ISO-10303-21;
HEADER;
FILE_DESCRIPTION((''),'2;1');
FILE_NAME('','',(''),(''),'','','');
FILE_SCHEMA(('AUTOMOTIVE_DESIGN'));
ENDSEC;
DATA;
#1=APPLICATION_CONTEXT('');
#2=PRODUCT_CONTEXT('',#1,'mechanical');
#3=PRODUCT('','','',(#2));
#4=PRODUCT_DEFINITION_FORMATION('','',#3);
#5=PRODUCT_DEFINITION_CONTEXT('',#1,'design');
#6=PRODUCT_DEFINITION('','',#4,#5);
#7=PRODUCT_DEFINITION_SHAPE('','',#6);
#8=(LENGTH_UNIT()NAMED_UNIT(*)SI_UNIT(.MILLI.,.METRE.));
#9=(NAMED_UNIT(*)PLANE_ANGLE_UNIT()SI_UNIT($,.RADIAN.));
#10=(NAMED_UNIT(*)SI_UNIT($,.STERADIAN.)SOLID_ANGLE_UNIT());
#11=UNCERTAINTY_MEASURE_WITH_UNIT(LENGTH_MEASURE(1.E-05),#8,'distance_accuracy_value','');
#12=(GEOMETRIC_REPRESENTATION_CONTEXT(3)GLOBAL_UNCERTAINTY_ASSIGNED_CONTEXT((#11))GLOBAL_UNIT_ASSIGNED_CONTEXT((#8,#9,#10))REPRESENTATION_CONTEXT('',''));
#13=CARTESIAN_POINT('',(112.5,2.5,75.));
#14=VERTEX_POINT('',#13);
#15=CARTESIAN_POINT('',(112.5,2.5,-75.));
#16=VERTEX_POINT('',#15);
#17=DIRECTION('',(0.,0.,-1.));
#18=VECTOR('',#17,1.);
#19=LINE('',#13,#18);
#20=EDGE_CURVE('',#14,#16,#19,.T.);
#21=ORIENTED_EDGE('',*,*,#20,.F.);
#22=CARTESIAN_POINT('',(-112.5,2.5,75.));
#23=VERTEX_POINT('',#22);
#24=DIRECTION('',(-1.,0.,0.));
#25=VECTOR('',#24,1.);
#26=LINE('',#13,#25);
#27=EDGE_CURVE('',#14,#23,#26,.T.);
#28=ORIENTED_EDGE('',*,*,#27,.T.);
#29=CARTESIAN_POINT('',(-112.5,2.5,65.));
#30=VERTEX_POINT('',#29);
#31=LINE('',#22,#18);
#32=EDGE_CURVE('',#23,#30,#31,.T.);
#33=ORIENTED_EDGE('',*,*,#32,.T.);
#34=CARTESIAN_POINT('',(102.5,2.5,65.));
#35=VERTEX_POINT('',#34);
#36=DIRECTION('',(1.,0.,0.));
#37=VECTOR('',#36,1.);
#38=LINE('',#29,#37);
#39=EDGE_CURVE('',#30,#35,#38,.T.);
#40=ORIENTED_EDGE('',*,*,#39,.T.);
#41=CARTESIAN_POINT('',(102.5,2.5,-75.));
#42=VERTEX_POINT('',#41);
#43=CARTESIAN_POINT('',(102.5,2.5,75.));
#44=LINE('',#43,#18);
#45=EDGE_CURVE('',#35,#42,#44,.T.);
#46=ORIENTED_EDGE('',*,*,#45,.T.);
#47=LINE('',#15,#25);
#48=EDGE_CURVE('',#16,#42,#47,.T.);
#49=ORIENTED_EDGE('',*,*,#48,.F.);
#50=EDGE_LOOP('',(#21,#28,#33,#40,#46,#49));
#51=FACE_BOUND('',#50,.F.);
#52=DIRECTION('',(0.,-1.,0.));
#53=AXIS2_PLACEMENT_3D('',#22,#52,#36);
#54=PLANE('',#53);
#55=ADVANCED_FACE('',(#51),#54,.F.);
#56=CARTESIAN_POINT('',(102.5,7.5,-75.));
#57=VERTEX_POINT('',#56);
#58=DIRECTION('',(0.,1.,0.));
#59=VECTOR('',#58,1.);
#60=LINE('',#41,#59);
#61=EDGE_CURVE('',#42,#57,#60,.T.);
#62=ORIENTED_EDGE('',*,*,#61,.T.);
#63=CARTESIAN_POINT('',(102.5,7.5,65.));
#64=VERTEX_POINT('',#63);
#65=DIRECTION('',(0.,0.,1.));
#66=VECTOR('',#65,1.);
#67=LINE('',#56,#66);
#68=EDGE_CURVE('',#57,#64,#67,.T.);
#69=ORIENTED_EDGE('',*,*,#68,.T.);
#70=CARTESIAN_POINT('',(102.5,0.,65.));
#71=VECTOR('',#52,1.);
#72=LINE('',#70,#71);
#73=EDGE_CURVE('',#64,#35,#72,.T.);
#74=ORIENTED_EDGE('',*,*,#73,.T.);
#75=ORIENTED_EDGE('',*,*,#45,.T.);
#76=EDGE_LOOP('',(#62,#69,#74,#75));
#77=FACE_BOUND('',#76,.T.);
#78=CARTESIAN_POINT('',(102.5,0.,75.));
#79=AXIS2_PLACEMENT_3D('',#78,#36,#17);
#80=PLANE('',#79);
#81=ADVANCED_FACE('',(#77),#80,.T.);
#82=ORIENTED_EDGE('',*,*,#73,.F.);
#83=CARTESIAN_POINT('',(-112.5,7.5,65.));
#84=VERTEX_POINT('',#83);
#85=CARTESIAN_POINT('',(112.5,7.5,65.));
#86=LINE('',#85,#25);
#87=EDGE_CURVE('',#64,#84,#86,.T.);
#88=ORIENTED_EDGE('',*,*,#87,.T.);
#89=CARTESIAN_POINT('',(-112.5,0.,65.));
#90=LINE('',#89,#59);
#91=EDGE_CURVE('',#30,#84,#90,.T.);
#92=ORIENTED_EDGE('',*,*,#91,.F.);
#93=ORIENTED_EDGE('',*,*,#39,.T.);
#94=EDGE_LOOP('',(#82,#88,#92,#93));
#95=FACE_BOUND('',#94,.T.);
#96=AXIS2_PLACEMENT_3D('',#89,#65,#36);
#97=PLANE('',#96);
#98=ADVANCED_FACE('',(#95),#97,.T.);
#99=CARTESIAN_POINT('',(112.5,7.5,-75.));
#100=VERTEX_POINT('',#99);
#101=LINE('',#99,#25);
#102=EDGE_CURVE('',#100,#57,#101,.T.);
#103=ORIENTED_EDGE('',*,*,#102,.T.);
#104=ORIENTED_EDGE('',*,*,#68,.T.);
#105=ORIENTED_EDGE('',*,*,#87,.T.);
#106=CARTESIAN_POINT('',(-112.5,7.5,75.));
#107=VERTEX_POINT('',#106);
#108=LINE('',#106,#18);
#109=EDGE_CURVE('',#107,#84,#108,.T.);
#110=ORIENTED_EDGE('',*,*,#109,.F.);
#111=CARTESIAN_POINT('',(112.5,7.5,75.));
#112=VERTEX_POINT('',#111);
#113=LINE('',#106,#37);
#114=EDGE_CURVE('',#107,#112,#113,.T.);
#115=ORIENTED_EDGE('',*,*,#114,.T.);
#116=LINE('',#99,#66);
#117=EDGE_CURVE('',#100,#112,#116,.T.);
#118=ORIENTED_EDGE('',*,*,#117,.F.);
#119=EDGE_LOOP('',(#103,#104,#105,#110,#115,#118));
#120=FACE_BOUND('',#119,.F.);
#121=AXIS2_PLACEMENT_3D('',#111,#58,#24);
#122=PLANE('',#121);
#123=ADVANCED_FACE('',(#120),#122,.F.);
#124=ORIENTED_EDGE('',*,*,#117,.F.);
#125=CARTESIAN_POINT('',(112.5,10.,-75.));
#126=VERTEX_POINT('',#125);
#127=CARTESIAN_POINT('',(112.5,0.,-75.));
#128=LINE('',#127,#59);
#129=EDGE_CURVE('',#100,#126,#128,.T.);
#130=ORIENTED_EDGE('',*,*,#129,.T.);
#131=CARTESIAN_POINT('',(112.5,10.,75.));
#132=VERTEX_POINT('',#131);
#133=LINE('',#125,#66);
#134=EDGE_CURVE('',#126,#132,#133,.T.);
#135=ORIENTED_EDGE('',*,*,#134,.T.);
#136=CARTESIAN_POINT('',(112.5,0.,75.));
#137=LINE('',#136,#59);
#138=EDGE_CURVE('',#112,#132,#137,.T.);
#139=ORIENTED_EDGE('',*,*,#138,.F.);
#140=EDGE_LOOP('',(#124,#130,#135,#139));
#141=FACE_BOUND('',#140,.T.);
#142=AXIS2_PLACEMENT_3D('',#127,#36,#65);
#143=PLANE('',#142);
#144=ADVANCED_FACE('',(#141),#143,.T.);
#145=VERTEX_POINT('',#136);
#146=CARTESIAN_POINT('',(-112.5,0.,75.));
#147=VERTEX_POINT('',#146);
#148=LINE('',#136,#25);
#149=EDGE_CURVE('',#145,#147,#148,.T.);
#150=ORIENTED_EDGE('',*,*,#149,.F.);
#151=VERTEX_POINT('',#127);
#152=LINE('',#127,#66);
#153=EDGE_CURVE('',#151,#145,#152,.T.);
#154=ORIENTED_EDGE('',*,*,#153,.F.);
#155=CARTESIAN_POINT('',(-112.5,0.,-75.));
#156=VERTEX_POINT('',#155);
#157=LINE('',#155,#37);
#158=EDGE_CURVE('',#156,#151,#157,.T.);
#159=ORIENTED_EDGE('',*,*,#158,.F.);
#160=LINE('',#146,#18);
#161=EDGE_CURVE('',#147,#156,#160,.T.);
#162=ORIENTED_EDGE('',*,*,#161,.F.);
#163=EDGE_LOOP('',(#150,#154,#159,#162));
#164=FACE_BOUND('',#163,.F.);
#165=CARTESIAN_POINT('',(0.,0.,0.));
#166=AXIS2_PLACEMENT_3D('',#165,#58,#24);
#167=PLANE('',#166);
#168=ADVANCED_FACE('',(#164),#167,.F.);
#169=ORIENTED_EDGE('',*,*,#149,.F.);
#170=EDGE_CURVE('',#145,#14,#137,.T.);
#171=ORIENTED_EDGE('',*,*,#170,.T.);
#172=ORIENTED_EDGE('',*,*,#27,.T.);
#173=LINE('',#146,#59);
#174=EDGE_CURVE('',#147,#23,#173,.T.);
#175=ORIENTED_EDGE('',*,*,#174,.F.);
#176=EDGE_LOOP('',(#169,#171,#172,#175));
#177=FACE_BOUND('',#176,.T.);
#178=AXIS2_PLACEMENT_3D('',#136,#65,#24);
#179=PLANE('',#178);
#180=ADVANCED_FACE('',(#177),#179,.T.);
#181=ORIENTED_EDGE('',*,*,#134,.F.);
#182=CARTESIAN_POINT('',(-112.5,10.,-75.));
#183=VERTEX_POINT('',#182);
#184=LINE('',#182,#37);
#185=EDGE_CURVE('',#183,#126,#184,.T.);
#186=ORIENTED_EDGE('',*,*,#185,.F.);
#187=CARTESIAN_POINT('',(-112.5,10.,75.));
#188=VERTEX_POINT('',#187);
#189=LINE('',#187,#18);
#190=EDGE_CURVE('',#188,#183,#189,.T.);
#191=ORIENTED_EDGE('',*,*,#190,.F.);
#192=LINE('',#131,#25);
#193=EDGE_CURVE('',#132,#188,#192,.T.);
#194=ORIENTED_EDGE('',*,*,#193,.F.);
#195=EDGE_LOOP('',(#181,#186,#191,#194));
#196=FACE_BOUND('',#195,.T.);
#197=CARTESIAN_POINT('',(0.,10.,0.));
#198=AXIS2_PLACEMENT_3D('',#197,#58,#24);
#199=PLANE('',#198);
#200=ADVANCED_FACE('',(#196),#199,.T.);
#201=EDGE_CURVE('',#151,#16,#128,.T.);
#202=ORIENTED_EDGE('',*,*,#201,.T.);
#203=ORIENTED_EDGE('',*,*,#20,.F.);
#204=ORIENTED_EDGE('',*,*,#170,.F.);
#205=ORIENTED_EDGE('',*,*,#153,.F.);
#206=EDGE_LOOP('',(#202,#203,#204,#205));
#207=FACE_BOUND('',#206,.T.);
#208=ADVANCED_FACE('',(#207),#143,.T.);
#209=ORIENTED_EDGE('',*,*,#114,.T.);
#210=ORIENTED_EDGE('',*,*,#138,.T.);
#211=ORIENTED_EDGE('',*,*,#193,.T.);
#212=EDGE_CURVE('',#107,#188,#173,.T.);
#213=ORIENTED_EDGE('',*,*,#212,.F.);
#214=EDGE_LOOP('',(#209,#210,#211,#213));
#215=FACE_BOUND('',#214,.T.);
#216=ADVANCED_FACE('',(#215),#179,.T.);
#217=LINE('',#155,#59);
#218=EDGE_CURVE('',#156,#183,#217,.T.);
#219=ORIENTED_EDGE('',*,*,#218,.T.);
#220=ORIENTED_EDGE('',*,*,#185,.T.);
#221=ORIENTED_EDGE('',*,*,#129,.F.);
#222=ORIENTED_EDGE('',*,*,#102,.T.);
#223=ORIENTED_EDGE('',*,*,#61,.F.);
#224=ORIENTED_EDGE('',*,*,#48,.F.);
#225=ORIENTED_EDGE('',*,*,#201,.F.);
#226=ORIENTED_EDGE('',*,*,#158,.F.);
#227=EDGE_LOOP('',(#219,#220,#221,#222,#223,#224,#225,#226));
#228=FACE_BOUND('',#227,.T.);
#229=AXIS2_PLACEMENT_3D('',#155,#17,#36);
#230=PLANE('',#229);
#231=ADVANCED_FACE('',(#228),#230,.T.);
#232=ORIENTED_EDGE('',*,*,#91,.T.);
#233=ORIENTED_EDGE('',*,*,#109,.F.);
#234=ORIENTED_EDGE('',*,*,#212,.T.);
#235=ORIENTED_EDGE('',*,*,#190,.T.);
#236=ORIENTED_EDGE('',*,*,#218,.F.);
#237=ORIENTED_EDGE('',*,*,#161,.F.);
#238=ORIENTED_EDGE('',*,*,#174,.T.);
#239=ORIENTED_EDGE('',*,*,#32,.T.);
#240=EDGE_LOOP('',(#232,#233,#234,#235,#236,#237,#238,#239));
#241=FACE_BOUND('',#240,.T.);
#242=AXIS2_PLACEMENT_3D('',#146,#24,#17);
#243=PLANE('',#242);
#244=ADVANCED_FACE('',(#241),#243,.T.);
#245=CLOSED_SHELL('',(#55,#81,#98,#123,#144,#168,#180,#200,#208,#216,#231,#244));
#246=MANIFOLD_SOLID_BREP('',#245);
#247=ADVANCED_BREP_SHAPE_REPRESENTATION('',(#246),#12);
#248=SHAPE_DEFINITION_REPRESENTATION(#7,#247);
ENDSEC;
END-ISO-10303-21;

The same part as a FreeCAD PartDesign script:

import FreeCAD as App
import Part
import Sketcher
Q = App.Units.Quantity


def add_polygon(sketch, points):
    """Adds a closed chain of lines whose ends are joined by coincident constraints."""
    first, n = sketch.GeometryCount, len(points)
    for a, b in zip(points, points[1:] + points[:1]):
        sketch.addGeometry(Part.LineSegment(App.Vector(*a, 0), App.Vector(*b, 0)), False)
    for i in range(n):
        sketch.addConstraint(Sketcher.Constraint("Coincident", first + i, 2, first + (i + 1) % n, 1))

doc = App.newDocument("Part")
params = doc.addObject("Spreadsheet::Sheet", "Params")
for row, (alias, value) in enumerate([
    ("sketch1_width", "225 mm"),
    ("sketch1_height", "150 mm"),
    ("pad1_length", "10 mm"),
    ("sketch2_width", "5 mm"),
    ("sketch2_height", "150 mm"),
    ("pocket1_length", "10 mm"),
    ("sketch3_width", "225 mm"),
    ("sketch3_height", "5 mm"),
    ("pocket2_length", "10 mm"),
], start=1):
    params.set(f"A{row}", alias)
    params.set(f"B{row}", "=" + value)
    params.setAlias(f"B{row}", alias)

body = doc.addObject("PartDesign::Body", "Body")

sketch1 = doc.addObject("Sketcher::SketchObject", "Sketch")
body.addObject(sketch1)
sketch1.AttachmentSupport = (doc.XZ_Plane, [""])
sketch1.MapMode = "FlatFace"
add_polygon(sketch1, [(-112, 75), (112, 75), (112, -75), (-112, -75)])
sketch1.addConstraint(Sketcher.Constraint("Horizontal", 0))
sketch1.addConstraint(Sketcher.Constraint("Vertical", 1))
sketch1.addConstraint(Sketcher.Constraint("Horizontal", 2))
sketch1.addConstraint(Sketcher.Constraint("Vertical", 3))
sketch1.addConstraint(Sketcher.Constraint("Symmetric", 0, 2, 2, 2, -1, 1))
sketch1.addConstraint(Sketcher.Constraint("DistanceX", 0, 1, 0, 2, Q("225 mm")))
sketch1.addConstraint(Sketcher.Constraint("DistanceY", 1, 2, 1, 1, Q("150 mm")))
sketch1.setExpression("Constraints[9]", "Params.sketch1_width")
sketch1.setExpression("Constraints[10]", "Params.sketch1_height")
pad1 = doc.addObject("PartDesign::Pad", "Pad")
body.addObject(pad1)
pad1.Profile = sketch1
pad1.setExpression("Length", "Params.pad1_length")
pad1.Reversed = True

sketch2 = doc.addObject("Sketcher::SketchObject", "Sketch001")
body.addObject(sketch2)
sketch2.AttachmentSupport = (doc.YZ_Plane, [""])
sketch2.MapMode = "FlatFace"
sketch2.AttachmentOffset = App.Placement(App.Vector(0, 0, 112.5), App.Rotation())
add_polygon(sketch2, [(8, 75), (2, 75), (2, -75), (8, -75)])
sketch2.addConstraint(Sketcher.Constraint("Horizontal", 0))
sketch2.addConstraint(Sketcher.Constraint("Vertical", 1))
sketch2.addConstraint(Sketcher.Constraint("Horizontal", 2))
sketch2.addConstraint(Sketcher.Constraint("Vertical", 3))
sketch2.addConstraint(Sketcher.Constraint("DistanceX", 0, 2, 0, 1, Q("5 mm")))
sketch2.addConstraint(Sketcher.Constraint("DistanceY", 1, 2, 1, 1, Q("150 mm")))
sketch2.addConstraint(Sketcher.Constraint("DistanceY", -1, 1, 0, 2, Q("75 mm")))
sketch2.addConstraint(Sketcher.Constraint("DistanceX", -1, 1, 0, 2, Q("2.5 mm")))
sketch2.setExpression("Constraints[8]", "Params.sketch2_width")
sketch2.setExpression("Constraints[9]", "Params.sketch2_height")
pocket1 = doc.addObject("PartDesign::Pocket", "Pocket")
body.addObject(pocket1)
pocket1.Profile = sketch2
pocket1.setExpression("Length", "Params.pocket1_length")

sketch3 = doc.addObject("Sketcher::SketchObject", "Sketch002")
body.addObject(sketch3)
sketch3.AttachmentSupport = (doc.XY_Plane, [""])
sketch3.MapMode = "FlatFace"
sketch3.AttachmentOffset = App.Placement(App.Vector(0, 0, 75), App.Rotation())
add_polygon(sketch3, [(-112, 8), (-112, 2), (112, 2), (112, 8)])
sketch3.addConstraint(Sketcher.Constraint("Vertical", 0))
sketch3.addConstraint(Sketcher.Constraint("Horizontal", 1))
sketch3.addConstraint(Sketcher.Constraint("Vertical", 2))
sketch3.addConstraint(Sketcher.Constraint("Horizontal", 3))
sketch3.addConstraint(Sketcher.Constraint("DistanceX", 1, 1, 1, 2, Q("225 mm")))
sketch3.addConstraint(Sketcher.Constraint("DistanceY", 0, 2, 0, 1, Q("5 mm")))
sketch3.addConstraint(Sketcher.Constraint("DistanceX", 0, 2, -1, 1, Q("112.5 mm")))
sketch3.addConstraint(Sketcher.Constraint("DistanceY", -1, 1, 0, 2, Q("2.5 mm")))
sketch3.setExpression("Constraints[8]", "Params.sketch3_width")
sketch3.setExpression("Constraints[9]", "Params.sketch3_height")
pocket2 = doc.addObject("PartDesign::Pocket", "Pocket001")
body.addObject(pocket2)
pocket2.Profile = sketch3
pocket2.setExpression("Length", "Params.pocket2_length")

doc.recompute()
